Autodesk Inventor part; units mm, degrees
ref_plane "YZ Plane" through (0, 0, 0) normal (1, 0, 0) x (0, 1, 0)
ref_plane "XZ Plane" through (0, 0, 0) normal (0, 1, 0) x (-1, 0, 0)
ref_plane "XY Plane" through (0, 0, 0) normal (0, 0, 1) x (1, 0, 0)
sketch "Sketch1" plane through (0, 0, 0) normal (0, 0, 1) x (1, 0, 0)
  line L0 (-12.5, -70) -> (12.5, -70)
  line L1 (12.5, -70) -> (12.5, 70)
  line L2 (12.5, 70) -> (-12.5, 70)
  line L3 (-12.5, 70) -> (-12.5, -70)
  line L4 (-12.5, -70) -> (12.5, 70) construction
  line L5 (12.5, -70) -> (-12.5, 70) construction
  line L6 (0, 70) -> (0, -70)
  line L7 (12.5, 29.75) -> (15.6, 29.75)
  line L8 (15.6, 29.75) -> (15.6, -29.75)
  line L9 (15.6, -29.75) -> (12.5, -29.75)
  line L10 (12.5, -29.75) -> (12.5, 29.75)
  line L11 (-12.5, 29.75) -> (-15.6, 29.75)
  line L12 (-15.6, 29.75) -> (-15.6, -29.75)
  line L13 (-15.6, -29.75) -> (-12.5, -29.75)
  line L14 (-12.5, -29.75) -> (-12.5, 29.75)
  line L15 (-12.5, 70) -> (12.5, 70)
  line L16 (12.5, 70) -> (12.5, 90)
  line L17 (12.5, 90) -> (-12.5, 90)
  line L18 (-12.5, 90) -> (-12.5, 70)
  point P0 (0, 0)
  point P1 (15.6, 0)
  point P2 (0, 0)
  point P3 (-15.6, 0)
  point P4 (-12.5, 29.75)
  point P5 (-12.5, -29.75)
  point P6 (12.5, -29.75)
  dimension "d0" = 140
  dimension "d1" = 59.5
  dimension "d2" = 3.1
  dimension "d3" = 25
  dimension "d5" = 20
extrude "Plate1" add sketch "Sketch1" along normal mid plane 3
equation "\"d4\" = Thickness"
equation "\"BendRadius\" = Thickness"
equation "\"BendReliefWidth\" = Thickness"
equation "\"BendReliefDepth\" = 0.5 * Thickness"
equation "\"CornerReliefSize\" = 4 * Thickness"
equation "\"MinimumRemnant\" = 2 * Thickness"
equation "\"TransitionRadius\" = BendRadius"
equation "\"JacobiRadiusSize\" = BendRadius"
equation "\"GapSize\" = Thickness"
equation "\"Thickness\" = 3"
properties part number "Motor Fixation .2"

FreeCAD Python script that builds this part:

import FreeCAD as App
import Part
import Sketcher

V = App.Vector
Q = App.Units.Quantity

doc = App.newDocument("Part")
params = doc.addObject("Spreadsheet::Sheet", "Params")
for row, (alias, value) in enumerate([
    ("sketch1_width", "25 mm"),
    ("sketch1_width2", "3.1 mm"),
    ("sketch1_height", "59.5 mm"),
    ("pad1_length", "3 mm"),
], start=1):
    params.set(f"A{row}", alias)
    params.set(f"B{row}", "=" + value)
    params.setAlias(f"B{row}", alias)

body = doc.addObject("PartDesign::Body", "Body")

# Sketch on XY plane
sketch1 = body.newObject("Sketcher::SketchObject", "Sketch")
sketch1.AttachmentSupport = (doc.getObject("XY_Plane"), [""])
sketch1.MapMode = "FlatFace"
sketch1.addGeometry([
    Part.LineSegment(V(-12.5, -29.8, 0), V(-12.5, -70, 0)),  # 0
    Part.LineSegment(V(-12.5, -70, 0), V(12.5, -70, 0)),  # 1
    Part.LineSegment(V(12.5, -70, 0), V(12.5, -29.8, 0)),  # 2
    Part.LineSegment(V(12.5, -29.8, 0), V(15.6, -29.8, 0)),  # 3
    Part.LineSegment(V(15.6, -29.8, 0), V(15.6, 29.8, 0)),  # 4
    Part.LineSegment(V(15.6, 29.8, 0), V(12.5, 29.8, 0)),  # 5
    Part.LineSegment(V(12.5, 29.8, 0), V(12.5, 90, 0)),  # 6
    Part.LineSegment(V(12.5, 90, 0), V(-12.5, 90, 0)),  # 7
    Part.LineSegment(V(-12.5, 90, 0), V(-12.5, 29.8, 0)),  # 8
    Part.LineSegment(V(-12.5, 29.8, 0), V(-15.6, 29.8, 0)),  # 9
    Part.LineSegment(V(-15.6, 29.8, 0), V(-15.6, -29.8, 0)),  # 10
    Part.LineSegment(V(-15.6, -29.8, 0), V(-12.5, -29.8, 0)),  # 11
], False)
sketch1.addConstraint([
    Sketcher.Constraint("Coincident", 0, 2, 1, 1),
    Sketcher.Constraint("Coincident", 1, 2, 2, 1),
    Sketcher.Constraint("Coincident", 2, 2, 3, 1),
    Sketcher.Constraint("Coincident", 3, 2, 4, 1),
    Sketcher.Constraint("Coincident", 4, 2, 5, 1),
    Sketcher.Constraint("Coincident", 5, 2, 6, 1),
    Sketcher.Constraint("Coincident", 6, 2, 7, 1),
    Sketcher.Constraint("Coincident", 7, 2, 8, 1),
    Sketcher.Constraint("Coincident", 8, 2, 9, 1),
    Sketcher.Constraint("Coincident", 9, 2, 10, 1),
    Sketcher.Constraint("Coincident", 10, 2, 11, 1),
    Sketcher.Constraint("Coincident", 11, 2, 0, 1),
    Sketcher.Constraint("Vertical", 0),
    Sketcher.Constraint("Horizontal", 1),
    Sketcher.Constraint("Vertical", 2),
    Sketcher.Constraint("Horizontal", 3),
    Sketcher.Constraint("Vertical", 4),
    Sketcher.Constraint("Horizontal", 5),
    Sketcher.Constraint("Vertical", 6),
    Sketcher.Constraint("Horizontal", 7),
    Sketcher.Constraint("Vertical", 8),
    Sketcher.Constraint("Horizontal", 9),
    Sketcher.Constraint("Vertical", 10),
    Sketcher.Constraint("Horizontal", 11),
    Sketcher.Constraint("Symmetric", 2, 2, 8, 2, -1, 1),
    Sketcher.Constraint("Symmetric", 4, 2, 10, 2, -1, 1),
    Sketcher.Constraint("Symmetric", 5, 2, 8, 2, -2),
    Sketcher.Constraint("Vertical", 0, 2, 7, 2),
    Sketcher.Constraint("DistanceX", 1, 1, 1, 2, Q("25 mm")),
    Sketcher.Constraint("DistanceX", 3, 1, 3, 2, Q("3.1 mm")),
    Sketcher.Constraint("DistanceY", 4, 1, 4, 2, Q("59.5 mm")),
    Sketcher.Constraint("DistanceY", 0, 2, -1, 1, Q("70 mm")),
    Sketcher.Constraint("DistanceY", -1, 1, 6, 2, Q("90 mm")),
])
sketch1.setExpression("Constraints[28]", "Params.sketch1_width")
sketch1.setExpression("Constraints[29]", "Params.sketch1_width2")
sketch1.setExpression("Constraints[30]", "Params.sketch1_height")
pad1 = body.newObject("PartDesign::Pad", "Pad")
pad1.Profile = sketch1
pad1.setExpression("Length", "Params.pad1_length")
pad1.Midplane = True

doc.recompute()
